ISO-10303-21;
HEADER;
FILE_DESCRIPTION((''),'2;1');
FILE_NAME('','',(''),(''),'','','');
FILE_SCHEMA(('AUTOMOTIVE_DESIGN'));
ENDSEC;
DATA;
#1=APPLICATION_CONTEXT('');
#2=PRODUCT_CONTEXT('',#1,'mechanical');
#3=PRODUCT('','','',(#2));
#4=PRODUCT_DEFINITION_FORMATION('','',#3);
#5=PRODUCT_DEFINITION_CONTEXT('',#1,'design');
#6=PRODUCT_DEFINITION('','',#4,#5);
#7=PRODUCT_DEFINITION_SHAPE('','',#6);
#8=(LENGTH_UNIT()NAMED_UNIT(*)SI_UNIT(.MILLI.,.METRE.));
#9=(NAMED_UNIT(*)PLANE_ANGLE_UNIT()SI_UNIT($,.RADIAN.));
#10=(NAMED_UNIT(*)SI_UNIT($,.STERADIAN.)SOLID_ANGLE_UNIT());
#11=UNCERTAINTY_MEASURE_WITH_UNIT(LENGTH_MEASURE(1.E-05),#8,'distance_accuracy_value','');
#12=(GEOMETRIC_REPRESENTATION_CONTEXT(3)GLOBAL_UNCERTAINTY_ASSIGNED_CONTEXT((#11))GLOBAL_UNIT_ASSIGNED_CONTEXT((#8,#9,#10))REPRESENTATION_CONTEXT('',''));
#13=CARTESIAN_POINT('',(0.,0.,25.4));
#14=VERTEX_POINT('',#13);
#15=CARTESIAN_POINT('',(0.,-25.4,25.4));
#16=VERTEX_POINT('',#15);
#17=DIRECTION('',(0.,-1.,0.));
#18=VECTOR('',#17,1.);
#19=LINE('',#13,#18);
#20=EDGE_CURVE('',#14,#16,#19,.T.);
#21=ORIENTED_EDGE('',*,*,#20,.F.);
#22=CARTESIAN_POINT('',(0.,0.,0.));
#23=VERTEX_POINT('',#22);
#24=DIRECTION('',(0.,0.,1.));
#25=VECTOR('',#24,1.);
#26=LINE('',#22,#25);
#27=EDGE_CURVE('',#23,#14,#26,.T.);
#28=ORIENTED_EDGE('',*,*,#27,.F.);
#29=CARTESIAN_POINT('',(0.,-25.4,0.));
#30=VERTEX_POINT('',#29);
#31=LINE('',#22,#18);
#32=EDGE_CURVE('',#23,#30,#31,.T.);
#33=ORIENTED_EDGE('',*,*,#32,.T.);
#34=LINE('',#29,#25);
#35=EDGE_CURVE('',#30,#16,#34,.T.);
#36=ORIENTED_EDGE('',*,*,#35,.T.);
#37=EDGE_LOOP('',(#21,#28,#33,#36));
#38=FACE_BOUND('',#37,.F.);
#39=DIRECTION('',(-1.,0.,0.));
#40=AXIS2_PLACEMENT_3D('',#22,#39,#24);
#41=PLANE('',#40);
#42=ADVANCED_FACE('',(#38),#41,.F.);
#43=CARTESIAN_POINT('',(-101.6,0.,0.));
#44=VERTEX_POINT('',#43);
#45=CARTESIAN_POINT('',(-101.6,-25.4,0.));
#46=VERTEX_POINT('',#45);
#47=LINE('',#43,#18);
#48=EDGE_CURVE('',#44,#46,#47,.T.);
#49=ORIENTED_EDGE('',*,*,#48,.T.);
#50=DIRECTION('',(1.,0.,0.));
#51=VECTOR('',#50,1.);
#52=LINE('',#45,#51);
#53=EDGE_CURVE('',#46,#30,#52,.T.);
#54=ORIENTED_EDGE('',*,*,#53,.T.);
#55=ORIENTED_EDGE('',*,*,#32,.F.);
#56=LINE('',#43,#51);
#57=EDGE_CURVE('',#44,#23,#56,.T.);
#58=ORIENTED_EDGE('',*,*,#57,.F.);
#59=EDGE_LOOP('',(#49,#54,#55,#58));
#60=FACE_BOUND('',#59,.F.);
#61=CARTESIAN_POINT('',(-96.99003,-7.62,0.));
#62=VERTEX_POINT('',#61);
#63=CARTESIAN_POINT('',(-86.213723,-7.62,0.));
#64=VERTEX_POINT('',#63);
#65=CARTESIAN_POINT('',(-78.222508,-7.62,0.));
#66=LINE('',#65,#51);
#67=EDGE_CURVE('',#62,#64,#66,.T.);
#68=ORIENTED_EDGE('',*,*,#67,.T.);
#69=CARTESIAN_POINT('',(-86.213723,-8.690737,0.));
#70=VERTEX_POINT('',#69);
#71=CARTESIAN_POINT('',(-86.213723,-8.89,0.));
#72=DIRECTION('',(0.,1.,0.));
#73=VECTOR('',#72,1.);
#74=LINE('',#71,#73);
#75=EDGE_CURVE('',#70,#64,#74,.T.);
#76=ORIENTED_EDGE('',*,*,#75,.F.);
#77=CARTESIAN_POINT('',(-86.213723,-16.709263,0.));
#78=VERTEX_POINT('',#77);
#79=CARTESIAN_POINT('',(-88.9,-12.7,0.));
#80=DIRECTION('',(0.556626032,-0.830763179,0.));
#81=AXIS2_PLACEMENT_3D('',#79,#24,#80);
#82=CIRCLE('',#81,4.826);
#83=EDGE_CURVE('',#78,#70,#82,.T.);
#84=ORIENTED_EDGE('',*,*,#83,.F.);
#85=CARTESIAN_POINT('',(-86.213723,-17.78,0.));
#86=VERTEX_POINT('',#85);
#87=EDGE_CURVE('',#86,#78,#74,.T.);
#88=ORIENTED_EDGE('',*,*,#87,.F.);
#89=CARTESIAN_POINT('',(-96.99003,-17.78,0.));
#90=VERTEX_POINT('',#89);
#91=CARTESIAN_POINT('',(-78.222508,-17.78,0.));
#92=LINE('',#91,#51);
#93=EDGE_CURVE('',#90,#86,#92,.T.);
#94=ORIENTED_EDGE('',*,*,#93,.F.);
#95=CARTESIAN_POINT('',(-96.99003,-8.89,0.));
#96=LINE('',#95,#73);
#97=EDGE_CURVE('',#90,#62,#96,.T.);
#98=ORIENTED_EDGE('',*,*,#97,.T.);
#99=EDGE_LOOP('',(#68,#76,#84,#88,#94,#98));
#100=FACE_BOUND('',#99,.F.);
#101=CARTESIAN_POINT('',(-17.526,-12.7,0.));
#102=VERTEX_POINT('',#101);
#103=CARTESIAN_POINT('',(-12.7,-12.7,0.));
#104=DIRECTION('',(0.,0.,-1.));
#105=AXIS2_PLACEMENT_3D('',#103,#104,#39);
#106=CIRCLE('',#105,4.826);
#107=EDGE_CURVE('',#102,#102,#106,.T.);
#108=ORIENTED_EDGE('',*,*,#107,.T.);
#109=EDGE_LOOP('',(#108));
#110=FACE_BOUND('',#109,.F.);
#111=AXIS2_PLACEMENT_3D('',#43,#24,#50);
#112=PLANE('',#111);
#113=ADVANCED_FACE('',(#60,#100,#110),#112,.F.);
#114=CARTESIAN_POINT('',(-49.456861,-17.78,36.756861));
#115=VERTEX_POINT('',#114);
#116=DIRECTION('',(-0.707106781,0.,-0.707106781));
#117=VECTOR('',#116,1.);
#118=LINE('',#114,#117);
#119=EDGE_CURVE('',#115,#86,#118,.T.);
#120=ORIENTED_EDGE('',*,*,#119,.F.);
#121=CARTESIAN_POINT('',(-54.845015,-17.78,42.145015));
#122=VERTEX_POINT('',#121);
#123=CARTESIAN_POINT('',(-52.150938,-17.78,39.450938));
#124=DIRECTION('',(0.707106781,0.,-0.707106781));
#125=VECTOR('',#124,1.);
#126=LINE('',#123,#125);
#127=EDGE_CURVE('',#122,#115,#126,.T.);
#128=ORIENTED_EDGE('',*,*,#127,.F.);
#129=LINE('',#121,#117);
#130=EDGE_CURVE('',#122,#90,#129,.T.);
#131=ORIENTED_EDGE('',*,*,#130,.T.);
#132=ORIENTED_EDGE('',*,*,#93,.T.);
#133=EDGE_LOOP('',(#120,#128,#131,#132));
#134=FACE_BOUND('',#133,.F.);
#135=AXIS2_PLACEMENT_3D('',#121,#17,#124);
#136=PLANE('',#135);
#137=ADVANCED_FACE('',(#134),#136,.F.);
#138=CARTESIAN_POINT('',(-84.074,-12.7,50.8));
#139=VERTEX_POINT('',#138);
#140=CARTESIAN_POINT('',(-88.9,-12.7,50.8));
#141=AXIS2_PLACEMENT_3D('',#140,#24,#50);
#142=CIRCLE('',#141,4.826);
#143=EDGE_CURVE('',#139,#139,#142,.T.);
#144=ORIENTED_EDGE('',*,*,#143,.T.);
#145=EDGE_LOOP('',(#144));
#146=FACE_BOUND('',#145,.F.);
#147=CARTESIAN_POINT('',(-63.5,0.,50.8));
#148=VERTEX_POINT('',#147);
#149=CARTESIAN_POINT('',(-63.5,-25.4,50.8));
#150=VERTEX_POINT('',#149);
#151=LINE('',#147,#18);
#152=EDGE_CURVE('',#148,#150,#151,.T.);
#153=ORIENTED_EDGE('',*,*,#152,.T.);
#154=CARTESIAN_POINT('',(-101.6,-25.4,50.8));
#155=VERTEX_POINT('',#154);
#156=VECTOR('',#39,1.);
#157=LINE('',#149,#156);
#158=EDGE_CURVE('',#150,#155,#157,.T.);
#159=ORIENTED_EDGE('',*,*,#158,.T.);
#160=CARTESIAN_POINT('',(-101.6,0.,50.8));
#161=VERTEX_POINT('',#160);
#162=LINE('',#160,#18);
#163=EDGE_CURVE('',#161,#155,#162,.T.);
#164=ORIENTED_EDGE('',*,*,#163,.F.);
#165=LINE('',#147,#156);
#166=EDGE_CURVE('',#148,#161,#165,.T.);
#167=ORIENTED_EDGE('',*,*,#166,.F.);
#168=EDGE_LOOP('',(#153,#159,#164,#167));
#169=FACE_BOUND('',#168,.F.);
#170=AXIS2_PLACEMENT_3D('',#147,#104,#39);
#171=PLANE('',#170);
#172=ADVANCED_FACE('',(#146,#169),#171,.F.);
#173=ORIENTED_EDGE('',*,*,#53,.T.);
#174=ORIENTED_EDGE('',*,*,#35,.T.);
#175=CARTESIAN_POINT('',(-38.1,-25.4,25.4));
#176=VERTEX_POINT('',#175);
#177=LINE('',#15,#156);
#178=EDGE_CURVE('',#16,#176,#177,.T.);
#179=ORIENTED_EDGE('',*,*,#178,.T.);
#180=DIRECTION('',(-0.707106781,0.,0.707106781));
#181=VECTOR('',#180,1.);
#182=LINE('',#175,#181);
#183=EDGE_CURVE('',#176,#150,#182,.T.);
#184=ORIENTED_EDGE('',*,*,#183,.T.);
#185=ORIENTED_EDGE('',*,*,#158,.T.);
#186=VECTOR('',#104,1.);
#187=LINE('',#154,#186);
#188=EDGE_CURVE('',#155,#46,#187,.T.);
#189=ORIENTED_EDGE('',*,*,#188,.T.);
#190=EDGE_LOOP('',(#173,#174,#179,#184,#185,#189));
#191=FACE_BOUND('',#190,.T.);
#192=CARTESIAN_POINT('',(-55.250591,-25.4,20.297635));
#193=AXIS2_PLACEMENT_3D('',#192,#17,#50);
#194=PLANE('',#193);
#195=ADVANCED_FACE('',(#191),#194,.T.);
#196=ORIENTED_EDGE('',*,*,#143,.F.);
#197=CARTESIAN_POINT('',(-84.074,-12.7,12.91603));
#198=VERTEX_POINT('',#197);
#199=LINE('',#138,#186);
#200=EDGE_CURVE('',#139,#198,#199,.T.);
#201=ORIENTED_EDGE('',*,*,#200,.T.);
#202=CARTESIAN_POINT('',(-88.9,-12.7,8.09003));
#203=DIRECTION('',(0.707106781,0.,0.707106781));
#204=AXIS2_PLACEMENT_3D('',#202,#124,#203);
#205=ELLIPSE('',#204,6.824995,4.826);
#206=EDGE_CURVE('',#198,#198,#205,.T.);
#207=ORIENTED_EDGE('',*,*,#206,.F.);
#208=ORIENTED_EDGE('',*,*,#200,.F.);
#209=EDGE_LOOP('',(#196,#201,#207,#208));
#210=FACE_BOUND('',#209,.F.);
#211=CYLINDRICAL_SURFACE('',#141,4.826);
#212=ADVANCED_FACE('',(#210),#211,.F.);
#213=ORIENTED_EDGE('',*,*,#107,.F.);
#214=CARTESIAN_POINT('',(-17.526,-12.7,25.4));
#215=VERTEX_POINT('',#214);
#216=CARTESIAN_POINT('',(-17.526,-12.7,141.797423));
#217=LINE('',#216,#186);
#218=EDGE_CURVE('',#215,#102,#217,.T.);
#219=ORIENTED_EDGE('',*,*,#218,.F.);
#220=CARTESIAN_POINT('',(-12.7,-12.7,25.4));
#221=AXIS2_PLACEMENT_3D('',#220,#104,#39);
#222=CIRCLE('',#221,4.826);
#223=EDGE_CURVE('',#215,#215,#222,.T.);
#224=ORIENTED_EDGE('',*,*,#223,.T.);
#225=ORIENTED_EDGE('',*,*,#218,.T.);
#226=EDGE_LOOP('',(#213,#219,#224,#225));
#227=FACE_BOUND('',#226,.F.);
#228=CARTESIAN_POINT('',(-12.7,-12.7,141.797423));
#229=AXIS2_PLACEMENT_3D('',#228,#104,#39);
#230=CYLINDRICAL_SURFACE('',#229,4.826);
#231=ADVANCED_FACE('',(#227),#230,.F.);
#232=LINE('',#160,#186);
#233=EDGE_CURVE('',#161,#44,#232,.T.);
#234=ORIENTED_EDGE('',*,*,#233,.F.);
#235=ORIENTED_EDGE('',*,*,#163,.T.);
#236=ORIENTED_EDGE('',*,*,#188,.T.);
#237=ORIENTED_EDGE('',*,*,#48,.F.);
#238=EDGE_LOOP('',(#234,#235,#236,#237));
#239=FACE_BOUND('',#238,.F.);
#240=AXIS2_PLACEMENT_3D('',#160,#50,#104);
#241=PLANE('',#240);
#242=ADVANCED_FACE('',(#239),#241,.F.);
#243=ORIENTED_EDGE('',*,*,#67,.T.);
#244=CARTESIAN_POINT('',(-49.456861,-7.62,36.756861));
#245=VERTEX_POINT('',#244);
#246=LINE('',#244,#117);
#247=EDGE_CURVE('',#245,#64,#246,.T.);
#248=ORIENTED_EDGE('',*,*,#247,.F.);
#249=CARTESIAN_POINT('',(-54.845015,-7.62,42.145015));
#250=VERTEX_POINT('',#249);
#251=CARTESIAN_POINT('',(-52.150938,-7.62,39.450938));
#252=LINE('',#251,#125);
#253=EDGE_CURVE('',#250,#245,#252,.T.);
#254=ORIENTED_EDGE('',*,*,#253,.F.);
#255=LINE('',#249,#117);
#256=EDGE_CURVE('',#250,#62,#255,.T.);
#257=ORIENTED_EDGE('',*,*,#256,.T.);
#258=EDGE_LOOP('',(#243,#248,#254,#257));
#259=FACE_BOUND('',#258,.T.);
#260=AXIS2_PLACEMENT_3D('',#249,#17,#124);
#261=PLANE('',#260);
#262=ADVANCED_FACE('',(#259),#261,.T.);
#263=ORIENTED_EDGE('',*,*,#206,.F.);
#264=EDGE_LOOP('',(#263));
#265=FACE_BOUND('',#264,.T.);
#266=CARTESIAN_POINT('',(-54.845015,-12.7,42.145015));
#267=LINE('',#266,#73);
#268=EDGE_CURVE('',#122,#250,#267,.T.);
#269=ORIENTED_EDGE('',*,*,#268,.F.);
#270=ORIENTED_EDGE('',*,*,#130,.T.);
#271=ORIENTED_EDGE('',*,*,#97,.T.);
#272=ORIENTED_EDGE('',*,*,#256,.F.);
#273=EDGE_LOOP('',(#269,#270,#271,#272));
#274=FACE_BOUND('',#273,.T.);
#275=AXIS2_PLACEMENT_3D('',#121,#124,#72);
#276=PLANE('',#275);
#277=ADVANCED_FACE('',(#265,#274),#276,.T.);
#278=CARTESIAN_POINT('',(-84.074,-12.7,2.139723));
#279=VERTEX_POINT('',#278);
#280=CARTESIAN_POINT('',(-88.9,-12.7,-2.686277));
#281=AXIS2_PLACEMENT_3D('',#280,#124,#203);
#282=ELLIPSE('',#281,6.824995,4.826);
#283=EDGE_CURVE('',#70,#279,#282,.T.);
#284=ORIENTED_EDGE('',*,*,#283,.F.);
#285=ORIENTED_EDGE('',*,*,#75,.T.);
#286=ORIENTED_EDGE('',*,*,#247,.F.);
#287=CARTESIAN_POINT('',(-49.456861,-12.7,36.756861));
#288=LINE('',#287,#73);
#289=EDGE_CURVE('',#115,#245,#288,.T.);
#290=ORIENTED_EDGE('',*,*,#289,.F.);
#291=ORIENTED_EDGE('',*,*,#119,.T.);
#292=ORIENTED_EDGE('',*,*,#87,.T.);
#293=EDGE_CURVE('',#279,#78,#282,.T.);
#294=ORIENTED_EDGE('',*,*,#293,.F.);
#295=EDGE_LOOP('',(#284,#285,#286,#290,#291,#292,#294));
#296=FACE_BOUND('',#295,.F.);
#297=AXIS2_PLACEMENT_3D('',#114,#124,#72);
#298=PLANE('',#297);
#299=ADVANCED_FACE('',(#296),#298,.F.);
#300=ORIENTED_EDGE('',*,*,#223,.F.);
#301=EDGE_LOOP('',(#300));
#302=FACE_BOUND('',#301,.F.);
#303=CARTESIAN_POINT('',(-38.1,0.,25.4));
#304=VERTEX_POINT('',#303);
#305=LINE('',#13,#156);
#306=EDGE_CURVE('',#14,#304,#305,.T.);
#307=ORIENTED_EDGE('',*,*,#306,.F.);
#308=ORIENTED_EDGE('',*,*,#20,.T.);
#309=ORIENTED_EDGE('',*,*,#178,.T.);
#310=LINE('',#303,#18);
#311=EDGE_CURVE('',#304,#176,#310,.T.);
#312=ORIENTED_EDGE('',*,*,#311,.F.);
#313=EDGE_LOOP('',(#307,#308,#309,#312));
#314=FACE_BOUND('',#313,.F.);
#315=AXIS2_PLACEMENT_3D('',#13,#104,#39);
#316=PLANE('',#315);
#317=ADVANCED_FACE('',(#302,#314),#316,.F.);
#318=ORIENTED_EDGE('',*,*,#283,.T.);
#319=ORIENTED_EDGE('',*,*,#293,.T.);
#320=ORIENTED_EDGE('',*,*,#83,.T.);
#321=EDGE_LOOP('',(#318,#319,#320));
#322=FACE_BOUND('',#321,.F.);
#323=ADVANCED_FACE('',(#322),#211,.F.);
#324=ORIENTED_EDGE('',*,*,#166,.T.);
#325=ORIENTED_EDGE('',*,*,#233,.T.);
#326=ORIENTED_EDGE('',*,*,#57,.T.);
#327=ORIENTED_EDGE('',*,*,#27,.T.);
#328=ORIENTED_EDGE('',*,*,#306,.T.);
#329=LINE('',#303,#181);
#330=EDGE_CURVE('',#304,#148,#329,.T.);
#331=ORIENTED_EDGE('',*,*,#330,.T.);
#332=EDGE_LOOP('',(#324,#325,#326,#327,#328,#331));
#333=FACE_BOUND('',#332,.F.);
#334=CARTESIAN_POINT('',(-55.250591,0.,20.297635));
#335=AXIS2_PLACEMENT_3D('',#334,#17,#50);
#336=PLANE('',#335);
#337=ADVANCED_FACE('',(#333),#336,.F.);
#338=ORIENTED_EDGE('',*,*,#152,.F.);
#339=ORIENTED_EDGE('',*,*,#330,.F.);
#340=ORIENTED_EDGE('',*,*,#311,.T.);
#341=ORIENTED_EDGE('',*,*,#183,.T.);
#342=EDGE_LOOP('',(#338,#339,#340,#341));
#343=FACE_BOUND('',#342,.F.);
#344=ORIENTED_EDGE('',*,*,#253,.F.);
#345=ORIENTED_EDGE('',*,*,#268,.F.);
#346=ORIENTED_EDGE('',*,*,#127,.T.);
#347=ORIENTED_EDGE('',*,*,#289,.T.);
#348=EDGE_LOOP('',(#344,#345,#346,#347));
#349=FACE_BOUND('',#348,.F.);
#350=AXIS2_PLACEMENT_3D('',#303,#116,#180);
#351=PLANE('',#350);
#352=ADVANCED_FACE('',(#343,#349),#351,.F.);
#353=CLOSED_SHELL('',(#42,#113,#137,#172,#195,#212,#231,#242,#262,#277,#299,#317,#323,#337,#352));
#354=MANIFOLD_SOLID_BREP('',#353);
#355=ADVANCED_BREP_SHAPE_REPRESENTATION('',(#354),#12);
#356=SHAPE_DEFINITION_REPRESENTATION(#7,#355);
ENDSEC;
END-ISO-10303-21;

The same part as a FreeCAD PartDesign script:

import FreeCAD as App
import Part
import Sketcher
Q = App.Units.Quantity

doc = App.newDocument("Part")
body = doc.addObject("PartDesign::Body", "Body")

# Sketch on XZ plane
sketch1 = body.newObject("Sketcher::SketchObject", "Sketch")
sketch1.AttachmentSupport = (doc.getObject("XZ_Plane"), [""])
sketch1.MapMode = "FlatFace"
sketch1.addGeometry(Part.LineSegment(App.Vector(-63.5, 50.8, 0), App.Vector(-101.6, 50.8, 0)), False)
sketch1.addGeometry(Part.LineSegment(App.Vector(-101.6, 50.8, 0), App.Vector(-101.6, 0, 0)), False)
sketch1.addGeometry(Part.LineSegment(App.Vector(-101.6, 0, 0), App.Vector(0, 0, 0)), False)
sketch1.addGeometry(Part.LineSegment(App.Vector(0, 0, 0), App.Vector(0, 25.4, 0)), False)
sketch1.addGeometry(Part.LineSegment(App.Vector(0, 25.4, 0), App.Vector(-38.1, 25.4, 0)), False)
sketch1.addGeometry(Part.LineSegment(App.Vector(-38.1, 25.4, 0), App.Vector(-63.5, 50.8, 0)), False)
sketch1.addConstraint(Sketcher.Constraint("Coincident", 0, 2, 1, 1))
sketch1.addConstraint(Sketcher.Constraint("Coincident", 1, 2, 2, 1))
sketch1.addConstraint(Sketcher.Constraint("Coincident", 2, 2, 3, 1))
sketch1.addConstraint(Sketcher.Constraint("Coincident", 3, 2, 4, 1))
sketch1.addConstraint(Sketcher.Constraint("Coincident", 4, 2, 5, 1))
sketch1.addConstraint(Sketcher.Constraint("Coincident", 5, 2, 0, 1))
sketch1.addConstraint(Sketcher.Constraint("Horizontal", 0))
sketch1.addConstraint(Sketcher.Constraint("Vertical", 1))
sketch1.addConstraint(Sketcher.Constraint("Horizontal", 2))
sketch1.addConstraint(Sketcher.Constraint("Vertical", 3))
sketch1.addConstraint(Sketcher.Constraint("Horizontal", 4))
sketch1.addConstraint(Sketcher.Constraint("Coincident", 2, 2, -1, 1))
sketch1.addConstraint(Sketcher.Constraint("Equal", 0, 4))
sketch1.addConstraint(Sketcher.Constraint("DistanceX", 2, 1, 2, 2, Q("4 in")))
sketch1.addConstraint(Sketcher.Constraint("DistanceY", 1, 2, 1, 1, Q("2 in")))
sketch1.addConstraint(Sketcher.Constraint("DistanceY", 3, 1, 3, 2, Q("1 in")))
sketch1.addConstraint(Sketcher.Constraint("DistanceX", 0, 2, 0, 1, Q("1.5 in")))
pad1 = body.newObject("PartDesign::Pad", "Pad")
pad1.Profile = sketch1
pad1.Length = Q("1 in")

# Sketch on XY plane
sketch2 = body.newObject("Sketcher::SketchObject", "Sketch001")
sketch2.AttachmentSupport = (doc.getObject("XY_Plane"), [""])
sketch2.MapMode = "FlatFace"
sketch2.AttachmentOffset = App.Placement(App.Vector(0, 0, 2 * 25.4), App.Rotation())
sketch2.addGeometry(Part.Circle(App.Vector(-88.9, -12.7, 0), App.Vector(0, 0, 1), 4.826), False)
sketch2.addConstraint(Sketcher.Constraint("Diameter", 0, Q("0.38 in")))
sketch2.addConstraint(Sketcher.Constraint("DistanceX", 0, 3, -1, 1, Q("3.5 in")))
sketch2.addConstraint(Sketcher.Constraint("DistanceY", 0, 3, -1, 1, Q("0.5 in")))
pocket1 = body.newObject("PartDesign::Pocket", "Pocket")
pocket1.Profile = sketch2
pocket1.Type = "ThroughAll"

# Sketch on XY plane
sketch3 = body.newObject("Sketcher::SketchObject", "Sketch002")
sketch3.AttachmentSupport = (doc.getObject("XY_Plane"), [""])
sketch3.MapMode = "FlatFace"
sketch3.AttachmentOffset = App.Placement(App.Vector(0, 0, 1 * 25.4), App.Rotation())
sketch3.addGeometry(Part.Circle(App.Vector(-12.7, -12.7, 0), App.Vector(0, 0, 1), 4.826), False)
sketch3.addConstraint(Sketcher.Constraint("Diameter", 0, Q("0.38 in")))
sketch3.addConstraint(Sketcher.Constraint("DistanceX", 0, 3, -1, 1, Q("0.5 in")))
sketch3.addConstraint(Sketcher.Constraint("DistanceY", 0, 3, -1, 1, Q("0.5 in")))
doc.recompute()
hole = body.newObject("PartDesign::Hole", "Hole")
hole.Profile = sketch3
hole.ThreadType = "None"
hole.Diameter = Q("0.38 in")
hole.DepthType = "ThroughAll"

# Sketch on an angled plane
sketch4 = body.newObject("Sketcher::SketchObject", "Sketch003")
sketch4.Placement = App.Placement(App.Vector(-6.35, 0, -6.35), App.Rotation(App.Vector(0.707106781, 0, -0.707106781), App.Vector(0, 0.999999999, 0), App.Vector(0.707106781, 0, 0.707106781), "ZXY"))
sketch4.addGeometry(Part.LineSegment(App.Vector(-68.582308, -7.62, 0), App.Vector(-68.582308, -17.78, 0)), False)
sketch4.addGeometry(Part.LineSegment(App.Vector(-68.582308, -17.78, 0), App.Vector(-60.962308, -17.78, 0)), False)
sketch4.addGeometry(Part.LineSegment(App.Vector(-60.962308, -17.78, 0), App.Vector(-60.962308, -7.62, 0)), False)
sketch4.addGeometry(Part.LineSegment(App.Vector(-60.962308, -7.62, 0), App.Vector(-68.582308, -7.62, 0)), False)
sketch4.addConstraint(Sketcher.Constraint("Coincident", 0, 2, 1, 1))
sketch4.addConstraint(Sketcher.Constraint("Coincident", 1, 2, 2, 1))
sketch4.addConstraint(Sketcher.Constraint("Coincident", 2, 2, 3, 1))
sketch4.addConstraint(Sketcher.Constraint("Coincident", 3, 2, 0, 1))
sketch4.addConstraint(Sketcher.Constraint("Vertical", 0))
sketch4.addConstraint(Sketcher.Constraint("Horizontal", 1))
sketch4.addConstraint(Sketcher.Constraint("Vertical", 2))
sketch4.addConstraint(Sketcher.Constraint("Horizontal", 3))
sketch4.addConstraint(Sketcher.Constraint("DistanceX", 1, 1, 1, 2, Q("0.3 in")))
sketch4.addConstraint(Sketcher.Constraint("DistanceY", 0, 2, 0, 1, Q("0.4 in")))
sketch4.addConstraint(Sketcher.Constraint("DistanceY", 0, 2, -1, 1, Q("0.7 in")))
sketch4.addConstraint(Sketcher.Constraint("DistanceX", 0, 2, -1, 1, Q("68.582308 mm")))
pocket2 = body.newObject("PartDesign::Pocket", "Pocket001")
pocket2.Profile = sketch4
pocket2.Type = "ThroughAll"

doc.recompute()
